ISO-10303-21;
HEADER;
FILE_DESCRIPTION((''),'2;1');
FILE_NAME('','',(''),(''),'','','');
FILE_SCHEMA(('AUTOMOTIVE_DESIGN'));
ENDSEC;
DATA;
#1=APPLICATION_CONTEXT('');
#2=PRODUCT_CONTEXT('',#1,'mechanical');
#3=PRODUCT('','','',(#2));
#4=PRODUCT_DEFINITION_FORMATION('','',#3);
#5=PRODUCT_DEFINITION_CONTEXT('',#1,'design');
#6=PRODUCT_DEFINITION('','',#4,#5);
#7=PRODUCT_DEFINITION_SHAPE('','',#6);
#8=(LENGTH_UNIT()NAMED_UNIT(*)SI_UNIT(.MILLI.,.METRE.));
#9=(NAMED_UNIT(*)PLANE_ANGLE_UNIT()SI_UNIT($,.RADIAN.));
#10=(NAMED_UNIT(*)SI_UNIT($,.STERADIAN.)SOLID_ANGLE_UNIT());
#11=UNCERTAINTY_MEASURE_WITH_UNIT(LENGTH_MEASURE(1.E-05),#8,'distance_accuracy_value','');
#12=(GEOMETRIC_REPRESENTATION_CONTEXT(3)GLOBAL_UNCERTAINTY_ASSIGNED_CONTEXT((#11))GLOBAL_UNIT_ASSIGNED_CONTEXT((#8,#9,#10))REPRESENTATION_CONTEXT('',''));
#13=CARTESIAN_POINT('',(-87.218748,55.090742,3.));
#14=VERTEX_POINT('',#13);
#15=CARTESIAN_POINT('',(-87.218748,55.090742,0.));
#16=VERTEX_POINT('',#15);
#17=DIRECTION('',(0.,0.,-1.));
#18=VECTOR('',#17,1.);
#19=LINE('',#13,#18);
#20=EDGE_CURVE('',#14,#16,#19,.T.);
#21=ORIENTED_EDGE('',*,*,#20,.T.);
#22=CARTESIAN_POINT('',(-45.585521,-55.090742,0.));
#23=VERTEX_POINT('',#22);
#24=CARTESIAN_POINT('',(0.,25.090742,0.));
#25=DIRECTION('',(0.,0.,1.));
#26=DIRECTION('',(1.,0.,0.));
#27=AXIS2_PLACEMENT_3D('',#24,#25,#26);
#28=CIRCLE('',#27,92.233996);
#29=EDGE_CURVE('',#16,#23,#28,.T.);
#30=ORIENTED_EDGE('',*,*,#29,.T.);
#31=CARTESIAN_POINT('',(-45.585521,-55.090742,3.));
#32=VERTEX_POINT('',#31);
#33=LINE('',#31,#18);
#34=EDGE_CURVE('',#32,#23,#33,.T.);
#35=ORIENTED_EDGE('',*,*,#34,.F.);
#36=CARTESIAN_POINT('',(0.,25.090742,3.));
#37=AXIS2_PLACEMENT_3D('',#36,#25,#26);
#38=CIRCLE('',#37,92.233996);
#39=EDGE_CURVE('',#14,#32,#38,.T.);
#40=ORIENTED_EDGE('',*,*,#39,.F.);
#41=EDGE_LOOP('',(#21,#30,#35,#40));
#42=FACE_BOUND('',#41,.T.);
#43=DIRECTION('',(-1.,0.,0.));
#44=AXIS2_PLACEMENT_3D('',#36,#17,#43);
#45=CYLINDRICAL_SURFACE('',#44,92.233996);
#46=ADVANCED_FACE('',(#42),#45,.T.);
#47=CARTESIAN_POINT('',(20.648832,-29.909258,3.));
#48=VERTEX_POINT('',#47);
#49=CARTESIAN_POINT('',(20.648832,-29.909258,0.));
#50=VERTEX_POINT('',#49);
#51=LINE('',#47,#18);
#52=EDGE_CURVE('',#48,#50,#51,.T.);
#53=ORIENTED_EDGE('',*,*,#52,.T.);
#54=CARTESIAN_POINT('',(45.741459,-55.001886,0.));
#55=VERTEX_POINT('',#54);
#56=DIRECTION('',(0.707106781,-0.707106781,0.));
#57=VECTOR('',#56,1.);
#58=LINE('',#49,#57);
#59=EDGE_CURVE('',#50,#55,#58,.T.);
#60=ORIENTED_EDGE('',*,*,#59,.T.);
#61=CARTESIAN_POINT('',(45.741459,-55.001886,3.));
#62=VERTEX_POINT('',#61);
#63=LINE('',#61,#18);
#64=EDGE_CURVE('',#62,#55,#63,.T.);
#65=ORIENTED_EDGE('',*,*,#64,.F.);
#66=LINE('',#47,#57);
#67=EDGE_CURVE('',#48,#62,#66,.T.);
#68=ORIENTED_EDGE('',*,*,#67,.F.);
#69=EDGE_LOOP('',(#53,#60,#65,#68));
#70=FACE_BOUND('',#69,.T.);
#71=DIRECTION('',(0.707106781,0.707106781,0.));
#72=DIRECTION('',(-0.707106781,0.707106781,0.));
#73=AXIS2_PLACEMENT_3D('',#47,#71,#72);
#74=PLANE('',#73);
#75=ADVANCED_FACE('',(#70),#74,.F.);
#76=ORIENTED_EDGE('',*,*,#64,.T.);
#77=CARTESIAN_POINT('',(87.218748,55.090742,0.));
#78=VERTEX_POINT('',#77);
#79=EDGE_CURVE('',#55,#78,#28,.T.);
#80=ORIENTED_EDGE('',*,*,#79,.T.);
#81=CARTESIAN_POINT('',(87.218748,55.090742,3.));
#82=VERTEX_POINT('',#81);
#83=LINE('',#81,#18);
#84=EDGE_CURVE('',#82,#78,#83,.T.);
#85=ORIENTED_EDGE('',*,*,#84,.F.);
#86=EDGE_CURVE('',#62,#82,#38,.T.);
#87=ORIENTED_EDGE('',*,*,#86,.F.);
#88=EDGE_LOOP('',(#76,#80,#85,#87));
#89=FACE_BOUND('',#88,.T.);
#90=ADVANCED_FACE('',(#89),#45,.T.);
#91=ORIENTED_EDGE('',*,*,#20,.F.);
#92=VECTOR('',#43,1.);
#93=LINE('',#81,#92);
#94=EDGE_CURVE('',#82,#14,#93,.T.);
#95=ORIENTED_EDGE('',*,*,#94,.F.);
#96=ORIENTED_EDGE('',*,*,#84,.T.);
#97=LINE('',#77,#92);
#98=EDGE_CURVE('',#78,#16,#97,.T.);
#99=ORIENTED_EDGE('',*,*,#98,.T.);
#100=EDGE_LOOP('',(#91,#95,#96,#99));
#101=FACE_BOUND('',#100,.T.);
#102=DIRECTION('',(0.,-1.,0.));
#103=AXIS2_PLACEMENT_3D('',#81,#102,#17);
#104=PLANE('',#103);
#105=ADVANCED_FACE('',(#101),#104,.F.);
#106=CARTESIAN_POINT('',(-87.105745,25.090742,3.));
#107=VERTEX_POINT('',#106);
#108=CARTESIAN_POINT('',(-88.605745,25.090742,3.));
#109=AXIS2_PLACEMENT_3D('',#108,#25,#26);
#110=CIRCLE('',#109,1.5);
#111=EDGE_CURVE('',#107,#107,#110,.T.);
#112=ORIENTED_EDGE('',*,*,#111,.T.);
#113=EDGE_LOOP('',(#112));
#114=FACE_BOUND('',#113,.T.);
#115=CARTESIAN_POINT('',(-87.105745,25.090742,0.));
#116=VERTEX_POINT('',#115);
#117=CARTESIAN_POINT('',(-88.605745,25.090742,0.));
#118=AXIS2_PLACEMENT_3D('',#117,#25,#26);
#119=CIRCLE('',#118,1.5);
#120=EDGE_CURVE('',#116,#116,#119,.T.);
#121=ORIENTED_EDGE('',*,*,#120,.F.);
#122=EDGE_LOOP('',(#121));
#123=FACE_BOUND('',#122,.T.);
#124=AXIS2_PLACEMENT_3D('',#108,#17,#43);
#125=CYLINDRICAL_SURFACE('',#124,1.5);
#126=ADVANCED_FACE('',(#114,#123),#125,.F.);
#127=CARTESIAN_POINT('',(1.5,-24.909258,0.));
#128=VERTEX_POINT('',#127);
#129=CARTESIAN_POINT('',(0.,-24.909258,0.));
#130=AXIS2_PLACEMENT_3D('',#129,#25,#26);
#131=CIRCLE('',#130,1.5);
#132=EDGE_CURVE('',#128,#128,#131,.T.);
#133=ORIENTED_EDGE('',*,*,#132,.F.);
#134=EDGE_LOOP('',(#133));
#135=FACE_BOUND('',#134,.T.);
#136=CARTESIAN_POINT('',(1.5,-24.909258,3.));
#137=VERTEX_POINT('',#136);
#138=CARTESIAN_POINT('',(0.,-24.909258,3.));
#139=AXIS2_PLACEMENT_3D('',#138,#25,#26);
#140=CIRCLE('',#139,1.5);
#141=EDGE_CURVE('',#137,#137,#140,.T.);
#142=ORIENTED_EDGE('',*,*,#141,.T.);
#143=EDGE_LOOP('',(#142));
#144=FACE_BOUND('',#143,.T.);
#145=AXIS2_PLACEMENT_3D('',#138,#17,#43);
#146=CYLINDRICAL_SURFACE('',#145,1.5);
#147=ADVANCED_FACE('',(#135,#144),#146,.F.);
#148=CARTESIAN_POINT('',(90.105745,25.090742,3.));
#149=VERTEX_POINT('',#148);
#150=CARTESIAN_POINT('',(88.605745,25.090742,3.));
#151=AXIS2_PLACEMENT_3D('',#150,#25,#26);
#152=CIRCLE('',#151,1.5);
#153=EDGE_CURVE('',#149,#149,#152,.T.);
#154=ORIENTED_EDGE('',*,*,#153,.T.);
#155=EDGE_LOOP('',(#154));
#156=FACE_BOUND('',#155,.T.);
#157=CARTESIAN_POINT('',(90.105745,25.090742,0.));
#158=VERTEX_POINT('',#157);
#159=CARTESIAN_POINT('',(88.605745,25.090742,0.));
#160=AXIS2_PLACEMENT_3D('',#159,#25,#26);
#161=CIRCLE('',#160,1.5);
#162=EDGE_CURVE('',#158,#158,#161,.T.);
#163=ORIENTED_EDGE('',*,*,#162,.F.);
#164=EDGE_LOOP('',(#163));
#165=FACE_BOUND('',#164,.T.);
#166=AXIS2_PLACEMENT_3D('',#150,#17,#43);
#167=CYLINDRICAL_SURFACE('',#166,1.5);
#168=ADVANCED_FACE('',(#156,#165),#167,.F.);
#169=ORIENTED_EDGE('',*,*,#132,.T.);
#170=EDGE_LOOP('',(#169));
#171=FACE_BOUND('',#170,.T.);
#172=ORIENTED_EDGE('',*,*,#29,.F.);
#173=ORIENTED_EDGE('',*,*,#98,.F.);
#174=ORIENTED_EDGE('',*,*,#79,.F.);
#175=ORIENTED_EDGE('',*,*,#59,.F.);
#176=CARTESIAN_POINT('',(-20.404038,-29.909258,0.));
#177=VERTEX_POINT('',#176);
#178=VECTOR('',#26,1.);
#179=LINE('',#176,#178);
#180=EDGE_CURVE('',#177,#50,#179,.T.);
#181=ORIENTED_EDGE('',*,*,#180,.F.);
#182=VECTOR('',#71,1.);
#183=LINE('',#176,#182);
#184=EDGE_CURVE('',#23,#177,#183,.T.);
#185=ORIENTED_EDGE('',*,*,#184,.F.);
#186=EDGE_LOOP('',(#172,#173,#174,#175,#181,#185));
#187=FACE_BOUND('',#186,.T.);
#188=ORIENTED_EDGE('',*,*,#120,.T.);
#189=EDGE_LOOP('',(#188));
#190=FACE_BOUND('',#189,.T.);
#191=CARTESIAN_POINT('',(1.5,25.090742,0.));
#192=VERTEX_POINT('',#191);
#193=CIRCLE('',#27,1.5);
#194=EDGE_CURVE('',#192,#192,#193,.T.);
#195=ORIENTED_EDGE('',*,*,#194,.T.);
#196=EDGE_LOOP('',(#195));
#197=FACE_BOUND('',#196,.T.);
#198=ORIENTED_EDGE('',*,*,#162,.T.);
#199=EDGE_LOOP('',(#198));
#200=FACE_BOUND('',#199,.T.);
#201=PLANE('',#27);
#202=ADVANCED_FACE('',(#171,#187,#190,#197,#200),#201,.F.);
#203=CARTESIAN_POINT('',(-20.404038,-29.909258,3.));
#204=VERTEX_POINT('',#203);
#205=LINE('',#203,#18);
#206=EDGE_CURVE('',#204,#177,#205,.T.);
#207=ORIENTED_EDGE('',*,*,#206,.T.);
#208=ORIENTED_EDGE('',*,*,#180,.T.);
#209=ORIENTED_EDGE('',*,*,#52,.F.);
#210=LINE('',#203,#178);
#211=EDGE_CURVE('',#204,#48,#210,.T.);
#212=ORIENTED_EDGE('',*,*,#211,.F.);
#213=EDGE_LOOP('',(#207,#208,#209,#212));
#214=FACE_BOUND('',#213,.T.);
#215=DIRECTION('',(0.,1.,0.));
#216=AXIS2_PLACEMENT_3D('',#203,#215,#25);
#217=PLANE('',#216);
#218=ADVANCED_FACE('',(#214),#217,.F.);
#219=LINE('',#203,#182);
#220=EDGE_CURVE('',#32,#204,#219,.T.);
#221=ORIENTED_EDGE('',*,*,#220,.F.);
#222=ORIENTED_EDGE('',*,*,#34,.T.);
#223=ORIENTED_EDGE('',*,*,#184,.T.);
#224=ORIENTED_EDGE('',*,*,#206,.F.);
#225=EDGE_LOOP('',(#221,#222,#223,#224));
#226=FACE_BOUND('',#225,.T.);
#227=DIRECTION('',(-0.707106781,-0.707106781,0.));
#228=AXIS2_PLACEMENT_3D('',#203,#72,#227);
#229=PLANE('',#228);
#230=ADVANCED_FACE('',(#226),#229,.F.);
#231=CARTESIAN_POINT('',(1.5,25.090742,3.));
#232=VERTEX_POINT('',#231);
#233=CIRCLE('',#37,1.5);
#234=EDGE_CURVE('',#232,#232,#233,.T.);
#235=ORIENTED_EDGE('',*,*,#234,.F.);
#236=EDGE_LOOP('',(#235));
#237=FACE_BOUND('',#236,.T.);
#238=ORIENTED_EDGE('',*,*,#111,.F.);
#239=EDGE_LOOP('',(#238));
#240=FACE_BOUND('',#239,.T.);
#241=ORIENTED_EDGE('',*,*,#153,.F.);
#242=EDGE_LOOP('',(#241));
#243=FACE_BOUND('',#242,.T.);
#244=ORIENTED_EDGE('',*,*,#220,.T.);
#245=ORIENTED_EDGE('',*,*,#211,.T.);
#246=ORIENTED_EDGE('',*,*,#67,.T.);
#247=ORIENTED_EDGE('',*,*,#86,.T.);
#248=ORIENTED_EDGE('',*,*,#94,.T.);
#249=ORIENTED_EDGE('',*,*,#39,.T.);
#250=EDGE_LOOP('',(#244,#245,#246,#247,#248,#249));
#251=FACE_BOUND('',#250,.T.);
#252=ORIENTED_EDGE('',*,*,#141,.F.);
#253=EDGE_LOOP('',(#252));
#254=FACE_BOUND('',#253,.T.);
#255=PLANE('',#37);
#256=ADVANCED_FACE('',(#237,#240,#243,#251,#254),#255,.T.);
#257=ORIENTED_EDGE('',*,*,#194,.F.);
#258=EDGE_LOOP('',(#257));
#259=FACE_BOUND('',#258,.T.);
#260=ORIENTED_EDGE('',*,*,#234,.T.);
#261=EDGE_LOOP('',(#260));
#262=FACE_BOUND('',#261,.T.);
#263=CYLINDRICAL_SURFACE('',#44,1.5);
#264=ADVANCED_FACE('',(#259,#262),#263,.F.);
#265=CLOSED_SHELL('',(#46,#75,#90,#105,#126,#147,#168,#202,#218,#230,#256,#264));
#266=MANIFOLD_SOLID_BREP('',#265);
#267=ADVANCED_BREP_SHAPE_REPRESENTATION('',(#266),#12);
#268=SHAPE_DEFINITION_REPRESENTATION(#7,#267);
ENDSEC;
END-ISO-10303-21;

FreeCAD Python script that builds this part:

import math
import FreeCAD as App
import Part
import Sketcher
Q = App.Units.Quantity

doc = App.newDocument("Part")
body = doc.addObject("PartDesign::Body", "Body")

# Sketch on XY plane
sketch1 = doc.addObject("Sketcher::SketchObject", "Sketch")
body.addObject(sketch1)
sketch1.AttachmentSupport = (doc.XY_Plane, [""])
sketch1.MapMode = "FlatFace"
sketch1.addGeometry([
    Part.LineSegment(App.Vector(87.2, 55.1, 0), App.Vector(-87.2, 55.1, 0)),  # 0
    Part.ArcOfCircle(Part.Circle(App.Vector(0, 25.1, 0), App.Vector(0, 0, 1), 92.2), math.radians(161), math.radians(240)),  # 1
    Part.LineSegment(App.Vector(-45.6, -55.1, 0), App.Vector(-20.4, -29.9, 0)),  # 2
    Part.LineSegment(App.Vector(-20.4, -29.9, 0), App.Vector(20.6, -29.9, 0)),  # 3
    Part.LineSegment(App.Vector(20.6, -29.9, 0), App.Vector(45.7, -55, 0)),  # 4
    Part.ArcOfCircle(Part.Circle(App.Vector(0, 25.1, 0), App.Vector(0, 0, 1), 92.2), math.radians(-60), math.radians(19)),  # 5
    Part.Circle(App.Vector(0, -24.9, 0), App.Vector(0, 0, 1), 1.5),  # 6
    Part.Circle(App.Vector(-88.6, 25.1, 0), App.Vector(0, 0, 1), 1.5),  # 7
    Part.Circle(App.Vector(0, 25.1, 0), App.Vector(0, 0, 1), 1.5),  # 8
    Part.Circle(App.Vector(88.6, 25.1, 0), App.Vector(0, 0, 1), 1.5),  # 9
], False)
sketch1.addConstraint([
    Sketcher.Constraint("Coincident", 0, 2, 1, 1),
    Sketcher.Constraint("Coincident", 1, 2, 2, 1),
    Sketcher.Constraint("Coincident", 2, 2, 3, 1),
    Sketcher.Constraint("Coincident", 3, 2, 4, 1),
    Sketcher.Constraint("Coincident", 4, 2, 5, 1),
    Sketcher.Constraint("Coincident", 5, 2, 0, 1),
    Sketcher.Constraint("Horizontal", 0),
    Sketcher.Constraint("Horizontal", 3),
    Sketcher.Constraint("Coincident", 5, 3, 1, 3),
    Sketcher.Constraint("Coincident", 8, 3, 1, 3),
    Sketcher.Constraint("Equal", 1, 5),
    Sketcher.Constraint("Equal", 6, 7),
    Sketcher.Constraint("Equal", 7, 8),
    Sketcher.Constraint("Equal", 8, 9),
    Sketcher.Constraint("Symmetric", 7, 3, 9, 3, -2),
    Sketcher.Constraint("PointOnObject", 1, 3, -2),
    Sketcher.Constraint("PointOnObject", 6, 3, -2),
    Sketcher.Constraint("Perpendicular", 2, 4),
    Sketcher.Constraint("Horizontal", 5, 3, 7, 3),
    Sketcher.Constraint("Diameter", 6, Q("3 mm")),
    Sketcher.Constraint("Angle", 2, Q("45 deg")),
    Sketcher.Constraint("DistanceY", 6, 3, 1, 3, Q("50 mm")),
    Sketcher.Constraint("DistanceY", 7, 3, 0, 2, Q("30 mm")),
    Sketcher.Constraint("DistanceY", 2, 2, 6, 3, Q("5 mm")),
    Sketcher.Constraint("Radius", 1, Q("92.233996 mm")),
    Sketcher.Constraint("DistanceX", 3, 1, 3, 2, Q("41.052869 mm")),
    Sketcher.Constraint("DistanceY", -1, 1, 1, 3, Q("25.090742 mm")),
    Sketcher.Constraint("DistanceX", 1, 2, -1, 1, Q("45.585521 mm")),
    Sketcher.Constraint("DistanceX", 7, 3, 9, 3, Q("177.21149 mm")),
])
pad1 = doc.addObject("PartDesign::Pad", "Pad")
body.addObject(pad1)
pad1.Profile = sketch1
pad1.Length = 3

doc.recompute()
